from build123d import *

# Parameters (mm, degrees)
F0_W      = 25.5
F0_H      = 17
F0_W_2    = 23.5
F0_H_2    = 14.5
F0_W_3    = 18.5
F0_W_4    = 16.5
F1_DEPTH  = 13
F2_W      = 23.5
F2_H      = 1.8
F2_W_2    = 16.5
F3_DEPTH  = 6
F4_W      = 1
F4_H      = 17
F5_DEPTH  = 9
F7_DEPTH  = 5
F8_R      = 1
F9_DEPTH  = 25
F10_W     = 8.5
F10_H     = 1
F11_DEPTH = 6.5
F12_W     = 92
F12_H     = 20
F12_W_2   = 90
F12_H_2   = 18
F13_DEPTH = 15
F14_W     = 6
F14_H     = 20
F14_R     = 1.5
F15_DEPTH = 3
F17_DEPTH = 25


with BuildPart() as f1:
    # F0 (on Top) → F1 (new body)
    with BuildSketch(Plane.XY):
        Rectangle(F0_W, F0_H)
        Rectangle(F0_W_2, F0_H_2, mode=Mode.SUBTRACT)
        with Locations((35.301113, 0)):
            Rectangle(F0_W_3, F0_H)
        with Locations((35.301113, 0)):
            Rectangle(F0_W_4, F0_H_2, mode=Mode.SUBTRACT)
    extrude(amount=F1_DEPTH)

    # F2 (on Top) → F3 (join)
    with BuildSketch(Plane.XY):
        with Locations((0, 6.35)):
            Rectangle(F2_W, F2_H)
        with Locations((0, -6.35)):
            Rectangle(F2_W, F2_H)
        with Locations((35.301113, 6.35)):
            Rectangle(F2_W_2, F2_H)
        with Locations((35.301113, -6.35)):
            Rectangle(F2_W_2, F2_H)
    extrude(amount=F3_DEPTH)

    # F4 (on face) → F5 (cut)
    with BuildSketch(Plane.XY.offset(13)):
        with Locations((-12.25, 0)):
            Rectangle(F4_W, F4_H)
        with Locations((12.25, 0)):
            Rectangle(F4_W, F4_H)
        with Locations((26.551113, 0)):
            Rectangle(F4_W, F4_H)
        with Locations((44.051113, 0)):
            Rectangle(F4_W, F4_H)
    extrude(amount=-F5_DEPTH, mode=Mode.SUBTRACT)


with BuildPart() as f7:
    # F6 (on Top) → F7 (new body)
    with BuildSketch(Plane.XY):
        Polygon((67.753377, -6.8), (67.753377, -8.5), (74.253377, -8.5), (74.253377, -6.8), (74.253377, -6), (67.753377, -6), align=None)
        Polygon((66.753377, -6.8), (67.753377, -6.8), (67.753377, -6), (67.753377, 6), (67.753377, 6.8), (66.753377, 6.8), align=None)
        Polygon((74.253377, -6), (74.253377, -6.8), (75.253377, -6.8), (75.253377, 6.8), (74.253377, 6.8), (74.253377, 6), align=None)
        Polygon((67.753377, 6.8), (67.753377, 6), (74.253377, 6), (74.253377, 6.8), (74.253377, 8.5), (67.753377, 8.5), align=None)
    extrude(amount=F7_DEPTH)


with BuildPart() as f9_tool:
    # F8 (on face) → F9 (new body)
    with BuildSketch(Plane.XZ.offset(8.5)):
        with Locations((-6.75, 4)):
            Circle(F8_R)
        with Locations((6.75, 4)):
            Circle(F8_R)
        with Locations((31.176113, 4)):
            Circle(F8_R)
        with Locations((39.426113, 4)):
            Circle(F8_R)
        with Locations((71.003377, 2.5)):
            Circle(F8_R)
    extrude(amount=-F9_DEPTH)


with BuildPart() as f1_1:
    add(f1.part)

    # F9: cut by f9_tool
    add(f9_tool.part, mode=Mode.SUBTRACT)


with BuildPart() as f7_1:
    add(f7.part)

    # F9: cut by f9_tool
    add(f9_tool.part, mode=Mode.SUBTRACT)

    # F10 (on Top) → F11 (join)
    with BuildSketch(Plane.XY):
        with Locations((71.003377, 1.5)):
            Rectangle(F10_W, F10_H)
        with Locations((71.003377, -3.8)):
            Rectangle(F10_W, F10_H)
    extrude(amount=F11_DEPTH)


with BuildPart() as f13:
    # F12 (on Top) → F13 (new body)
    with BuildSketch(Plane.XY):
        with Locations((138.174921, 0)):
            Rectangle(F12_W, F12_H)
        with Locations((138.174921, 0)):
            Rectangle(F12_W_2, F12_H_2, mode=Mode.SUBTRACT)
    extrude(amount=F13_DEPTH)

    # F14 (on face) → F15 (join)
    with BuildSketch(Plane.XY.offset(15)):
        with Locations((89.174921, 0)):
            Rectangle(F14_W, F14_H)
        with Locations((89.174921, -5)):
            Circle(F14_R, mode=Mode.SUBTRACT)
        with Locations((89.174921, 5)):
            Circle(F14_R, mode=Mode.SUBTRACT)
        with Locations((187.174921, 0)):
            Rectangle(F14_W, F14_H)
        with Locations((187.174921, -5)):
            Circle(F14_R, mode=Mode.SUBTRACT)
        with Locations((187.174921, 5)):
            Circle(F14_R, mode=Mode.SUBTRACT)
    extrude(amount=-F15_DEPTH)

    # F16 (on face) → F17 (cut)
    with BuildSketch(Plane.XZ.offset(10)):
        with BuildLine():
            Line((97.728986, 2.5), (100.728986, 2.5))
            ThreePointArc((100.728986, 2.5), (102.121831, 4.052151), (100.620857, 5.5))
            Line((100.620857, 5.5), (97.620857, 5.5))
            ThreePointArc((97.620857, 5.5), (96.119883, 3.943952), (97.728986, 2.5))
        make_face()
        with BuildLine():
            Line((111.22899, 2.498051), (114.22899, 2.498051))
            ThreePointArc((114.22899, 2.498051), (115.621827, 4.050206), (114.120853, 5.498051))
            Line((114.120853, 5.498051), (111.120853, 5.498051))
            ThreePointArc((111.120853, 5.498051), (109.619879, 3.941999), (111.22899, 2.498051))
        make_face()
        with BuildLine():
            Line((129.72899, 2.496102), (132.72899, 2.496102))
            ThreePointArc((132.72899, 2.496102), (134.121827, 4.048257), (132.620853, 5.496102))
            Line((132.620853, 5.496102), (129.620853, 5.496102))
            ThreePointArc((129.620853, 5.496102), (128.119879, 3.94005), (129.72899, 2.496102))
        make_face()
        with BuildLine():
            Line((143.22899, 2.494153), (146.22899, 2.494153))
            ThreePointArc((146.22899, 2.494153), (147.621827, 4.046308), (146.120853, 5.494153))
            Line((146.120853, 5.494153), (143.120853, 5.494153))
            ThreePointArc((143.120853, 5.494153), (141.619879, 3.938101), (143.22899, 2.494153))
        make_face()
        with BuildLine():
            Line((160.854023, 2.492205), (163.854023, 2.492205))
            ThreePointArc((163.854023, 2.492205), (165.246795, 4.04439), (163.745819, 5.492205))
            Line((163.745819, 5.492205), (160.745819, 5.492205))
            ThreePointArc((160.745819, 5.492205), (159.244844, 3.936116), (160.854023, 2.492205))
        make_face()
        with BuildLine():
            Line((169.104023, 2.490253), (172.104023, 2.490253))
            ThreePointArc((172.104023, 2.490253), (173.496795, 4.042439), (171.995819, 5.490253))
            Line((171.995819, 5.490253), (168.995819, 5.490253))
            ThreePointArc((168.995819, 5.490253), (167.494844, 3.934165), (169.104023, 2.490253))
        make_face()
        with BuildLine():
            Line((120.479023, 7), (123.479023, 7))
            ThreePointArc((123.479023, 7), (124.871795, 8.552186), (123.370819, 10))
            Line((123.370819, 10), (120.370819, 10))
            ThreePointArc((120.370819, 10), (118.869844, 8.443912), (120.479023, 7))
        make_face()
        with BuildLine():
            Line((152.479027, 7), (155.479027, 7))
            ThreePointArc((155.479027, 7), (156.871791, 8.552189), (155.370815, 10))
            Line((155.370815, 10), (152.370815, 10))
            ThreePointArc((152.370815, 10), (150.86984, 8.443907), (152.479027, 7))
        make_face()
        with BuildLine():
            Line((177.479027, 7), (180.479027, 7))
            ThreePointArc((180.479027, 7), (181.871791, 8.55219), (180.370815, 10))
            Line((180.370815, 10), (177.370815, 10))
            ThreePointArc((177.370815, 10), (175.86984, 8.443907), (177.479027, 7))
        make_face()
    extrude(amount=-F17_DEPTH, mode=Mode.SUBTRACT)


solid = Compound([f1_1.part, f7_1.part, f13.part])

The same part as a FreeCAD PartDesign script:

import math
import FreeCAD as App
import Part
import Sketcher
Q = App.Units.Quantity


def add_polygon(sketch, points):
    """Adds a closed chain of lines whose ends are joined by coincident constraints."""
    first, n = sketch.GeometryCount, len(points)
    for a, b in zip(points, points[1:] + points[:1]):
        sketch.addGeometry(Part.LineSegment(App.Vector(*a, 0), App.Vector(*b, 0)), False)
    for i in range(n):
        sketch.addConstraint(Sketcher.Constraint("Coincident", first + i, 2, first + (i + 1) % n, 1))

doc = App.newDocument("Part")
body = doc.addObject("PartDesign::Body", "Body")
body.AllowCompound = True

# Sketch on XY plane
sketch1 = body.newObject("Sketcher::SketchObject", "Sketch")
sketch1.AttachmentSupport = (doc.getObject("XY_Plane"), [""])
sketch1.MapMode = "FlatFace"
add_polygon(sketch1, [(-13, 8), (-13, -8), (13, -8), (13, 8)])  # lines 0-3
add_polygon(sketch1, [(12, -7), (-12, -7), (-12, 7), (12, 7)])  # lines 4-7
add_polygon(sketch1, [(26, 8), (26, -8), (45, -8), (45, 8)])  # lines 8-11
add_polygon(sketch1, [(44, -7), (27, -7), (27, 7), (44, 7)])  # lines 12-15
sketch1.addConstraint([
    Sketcher.Constraint("Vertical", 0),
    Sketcher.Constraint("Horizontal", 1),
    Sketcher.Constraint("Vertical", 2),
    Sketcher.Constraint("Horizontal", 3),
    Sketcher.Constraint("Horizontal", 4),
    Sketcher.Constraint("Vertical", 5),
    Sketcher.Constraint("Horizontal", 6),
    Sketcher.Constraint("Vertical", 7),
    Sketcher.Constraint("Vertical", 8),
    Sketcher.Constraint("Horizontal", 9),
    Sketcher.Constraint("Vertical", 10),
    Sketcher.Constraint("Horizontal", 11),
    Sketcher.Constraint("Horizontal", 12),
    Sketcher.Constraint("Vertical", 13),
    Sketcher.Constraint("Horizontal", 14),
    Sketcher.Constraint("Vertical", 15),
    Sketcher.Constraint("Symmetric", 0, 2, 2, 2, -1, 1),
    Sketcher.Constraint("Symmetric", 4, 2, 6, 2, -1, 1),
    Sketcher.Constraint("Horizontal", 1, 2, 8, 2),
    Sketcher.Constraint("Horizontal", 3, 2, 10, 2),
    Sketcher.Constraint("Horizontal", 7, 2, 12, 2),
    Sketcher.Constraint("Horizontal", 6, 2, 13, 2),
    Sketcher.Constraint("DistanceY", 0, 2, 0, 1, Q("17 mm")),
    Sketcher.Constraint("DistanceX", 1, 1, 1, 2, Q("25.5 mm")),
    Sketcher.Constraint("DistanceX", 4, 2, 4, 1, Q("23.5 mm")),
    Sketcher.Constraint("DistanceX", 9, 1, 9, 2, Q("18.5 mm")),
    Sketcher.Constraint("DistanceX", 12, 2, 12, 1, Q("16.5 mm")),
    Sketcher.Constraint("DistanceY", 5, 1, 5, 2, Q("14.5 mm")),
    Sketcher.Constraint("DistanceX", 8, 2, 12, 2, Q("1 mm")),
    Sketcher.Constraint("DistanceX", -1, 1, 8, 2, Q("26.051113 mm")),
])
pad1 = body.newObject("PartDesign::Pad", "Pad")
pad1.Profile = sketch1
pad1.Length = 13

# Sketch on XY plane
sketch2 = body.newObject("Sketcher::SketchObject", "Sketch001")
sketch2.AttachmentSupport = (doc.getObject("XY_Plane"), [""])
sketch2.MapMode = "FlatFace"
add_polygon(sketch2, [(-11.8, 7.2), (-11.8, 5.5), (11.8, 5.5), (11.8, 7.2)])  # lines 0-3
add_polygon(sketch2, [(-11.8, -5.5), (-11.8, -7.2), (11.8, -7.2), (11.8, -5.5)])  # lines 4-7
add_polygon(sketch2, [(27.1, 7.2), (27.1, 5.5), (43.6, 5.5), (43.6, 7.2)])  # lines 8-11
add_polygon(sketch2, [(27.1, -5.5), (27.1, -7.2), (43.6, -7.2), (43.6, -5.5)])  # lines 12-15
sketch2.addConstraint([
    Sketcher.Constraint("Vertical", 0),
    Sketcher.Constraint("Horizontal", 1),
    Sketcher.Constraint("Vertical", 2),
    Sketcher.Constraint("Horizontal", 3),
    Sketcher.Constraint("Vertical", 4),
    Sketcher.Constraint("Horizontal", 5),
    Sketcher.Constraint("Vertical", 6),
    Sketcher.Constraint("Horizontal", 7),
    Sketcher.Constraint("Vertical", 8),
    Sketcher.Constraint("Horizontal", 9),
    Sketcher.Constraint("Vertical", 10),
    Sketcher.Constraint("Horizontal", 11),
    Sketcher.Constraint("Vertical", 12),
    Sketcher.Constraint("Horizontal", 13),
    Sketcher.Constraint("Vertical", 14),
    Sketcher.Constraint("Horizontal", 15),
    Sketcher.Constraint("Symmetric", 2, 2, 4, 2, -1, 1),
    Sketcher.Constraint("Symmetric", 0, 2, 6, 2, -1, 1),
    Sketcher.Constraint("Symmetric", 11, 2, 12, 2, -1),
    Sketcher.Constraint("Symmetric", 9, 2, 14, 2, -1),
    Sketcher.Constraint("Horizontal", 1, 2, 8, 2),
    Sketcher.Constraint("Horizontal", 3, 2, 10, 2),
    Sketcher.Constraint("Vertical", 3, 2, 4, 2),
    Sketcher.Constraint("DistanceX", 1, 1, 1, 2, Q("23.5 mm")),
    Sketcher.Constraint("DistanceX", 9, 1, 9, 2, Q("16.5 mm")),
    Sketcher.Constraint("DistanceY", 0, 2, 0, 1, Q("1.8 mm")),
    Sketcher.Constraint("DistanceY", 4, 2, 0, 2, Q("12.7 mm")),
    Sketcher.Constraint("DistanceX", -1, 1, 8, 2, Q("27.051113 mm")),
])
pad2 = body.newObject("PartDesign::Pad", "Pad001")
pad2.Profile = sketch2
pad2.Length = 6

# Sketch on XY plane
sketch3 = body.newObject("Sketcher::SketchObject", "Sketch002")
sketch3.AttachmentSupport = (doc.getObject("XY_Plane"), [""])
sketch3.MapMode = "FlatFace"
sketch3.AttachmentOffset = App.Placement(App.Vector(0, 0, 13), App.Rotation())
add_polygon(sketch3, [(-12.8, 8.5), (-12.8, -8.5), (-11.8, -8.5), (-11.8, 8.5)])  # lines 0-3
add_polygon(sketch3, [(11.8, 8.5), (11.8, -8.5), (12.8, -8.5), (12.8, 8.5)])  # lines 4-7
add_polygon(sketch3, [(26.1, 8.5), (26.1, -8.5), (27.1, -8.5), (27.1, 8.5)])  # lines 8-11
add_polygon(sketch3, [(43.6, 8.5), (43.6, -8.5), (44.6, -8.5), (44.6, 8.5)])  # lines 12-15
sketch3.addConstraint([
    Sketcher.Constraint("Vertical", 0),
    Sketcher.Constraint("Horizontal", 1),
    Sketcher.Constraint("Vertical", 2),
    Sketcher.Constraint("Horizontal", 3),
    Sketcher.Constraint("Vertical", 4),
    Sketcher.Constraint("Horizontal", 5),
    Sketcher.Constraint("Vertical", 6),
    Sketcher.Constraint("Horizontal", 7),
    Sketcher.Constraint("Vertical", 8),
    Sketcher.Constraint("Horizontal", 9),
    Sketcher.Constraint("Vertical", 10),
    Sketcher.Constraint("Horizontal", 11),
    Sketcher.Constraint("Vertical", 12),
    Sketcher.Constraint("Horizontal", 13),
    Sketcher.Constraint("Vertical", 14),
    Sketcher.Constraint("Horizontal", 15),
    Sketcher.Constraint("Symmetric", 2, 2, 4, 2, -1, 1),
    Sketcher.Constraint("Symmetric", 0, 2, 6, 2, -1, 1),
    Sketcher.Constraint("Horizontal", 1, 2, 4, 2),
    Sketcher.Constraint("Horizontal", 5, 2, 8, 2),
    Sketcher.Constraint("Horizontal", 7, 2, 10, 2),
    Sketcher.Constraint("Horizontal", 9, 2, 12, 2),
    Sketcher.Constraint("Horizontal", 11, 2, 14, 2),
    Sketcher.Constraint("Equal", 7, 9),
    Sketcher.Constraint("Equal", 11, 13),
    Sketcher.Constraint("DistanceX", 1, 1, 1, 2, Q("1 mm")),
    Sketcher.Constraint("DistanceY", 0, 2, 0, 1, Q("17 mm")),
    Sketcher.Constraint("DistanceX", 1, 2, 4, 2, Q("23.5 mm")),
    Sketcher.Constraint("DistanceX", 9, 2, 12, 2, Q("16.5 mm")),
    Sketcher.Constraint("DistanceX", -1, 1, 8, 2, Q("26.051113 mm")),
])
pocket1 = body.newObject("PartDesign::Pocket", "Pocket")
pocket1.Profile = sketch3
pocket1.Length = 9
body2 = doc.addObject("PartDesign::Body", "Body001")

# Sketch on XY plane
sketch4 = body2.newObject("Sketcher::SketchObject", "Sketch003")
sketch4.AttachmentSupport = (doc.getObject("XY_Plane001"), [""])
sketch4.MapMode = "FlatFace"
add_polygon(sketch4, [(67.8, -8.5), (74.3, -8.5), (74.3, -6.8), (75.3, -6.8), (75.3, 6.8), (74.3, 6.8), (74.3, 8.5), (67.8, 8.5), (67.8, 6.8), (66.8, 6.8), (66.8, -6.8), (67.8, -6.8)])  # lines 0-11
add_polygon(sketch4, [(74.3, 6), (74.3, -6), (67.8, -6), (67.8, 6)])  # lines 12-15
sketch4.addConstraint([
    Sketcher.Constraint("Horizontal", 0),
    Sketcher.Constraint("Vertical", 1),
    Sketcher.Constraint("Horizontal", 2),
    Sketcher.Constraint("Vertical", 3),
    Sketcher.Constraint("Horizontal", 4),
    Sketcher.Constraint("Vertical", 5),
    Sketcher.Constraint("Horizontal", 6),
    Sketcher.Constraint("Vertical", 7),
    Sketcher.Constraint("Horizontal", 8),
    Sketcher.Constraint("Vertical", 9),
    Sketcher.Constraint("Horizontal", 10),
    Sketcher.Constraint("Vertical", 11),
    Sketcher.Constraint("Vertical", 12),
    Sketcher.Constraint("Horizontal", 13),
    Sketcher.Constraint("Vertical", 14),
    Sketcher.Constraint("Horizontal", 15),
    Sketcher.Constraint("Symmetric", 1, 2, 4, 2, -1),
    Sketcher.Constraint("Symmetric", 7, 2, 10, 2, -1),
    Sketcher.Constraint("Horizontal", 4, 2, 7, 2),
    Sketcher.Constraint("Vertical", 5, 2, 12, 2),
    Sketcher.Constraint("Vertical", 11, 2, 13, 2),
    Sketcher.Constraint("Equal", 4, 8),
    Sketcher.Constraint("Equal", 1, 5),
    Sketcher.Constraint("DistanceX", 2, 1, 2, 2, Q("1 mm")),
    Sketcher.Constraint("DistanceY", 12, 2, 12, 1, Q("12 mm")),
    Sketcher.Constraint("DistanceX", 0, 1, 0, 2, Q("6.5 mm")),
    Sketcher.Constraint("DistanceY", 1, 1, 1, 2, Q("1.7 mm")),
    Sketcher.Constraint("DistanceY", 3, 1, 3, 2, Q("13.6 mm")),
    Sketcher.Constraint("DistanceY", 12, 2, -1, 1, Q("6 mm")),
    Sketcher.Constraint("DistanceX", -1, 1, 0, 2, Q("74.253377 mm")),
])
pad3 = body2.newObject("PartDesign::Pad", "Pad002")
pad3.Profile = sketch4
pad3.Length = 5
body3 = doc.addObject("PartDesign::Body", "Body002")
body3.AllowCompound = True

# Sketch on XZ plane
sketch5 = body3.newObject("Sketcher::SketchObject", "Sketch004")
sketch5.AttachmentSupport = (doc.getObject("XZ_Plane002"), [""])
sketch5.MapMode = "FlatFace"
sketch5.AttachmentOffset = App.Placement(App.Vector(0, 0, 8.5), App.Rotation())
sketch5.addGeometry([
    Part.Circle(App.Vector(-6.8, 4, 0), App.Vector(0, 0, 1), 1),  # 0
    Part.Circle(App.Vector(6.8, 4, 0), App.Vector(0, 0, 1), 1),  # 1
    Part.Circle(App.Vector(31.2, 4, 0), App.Vector(0, 0, 1), 1),  # 2
    Part.Circle(App.Vector(39.4, 4, 0), App.Vector(0, 0, 1), 1),  # 3
    Part.Circle(App.Vector(71, 2.5, 0), App.Vector(0, 0, 1), 1),  # 4
], False)
sketch5.addConstraint([
    Sketcher.Constraint("Equal", 0, 1),
    Sketcher.Constraint("Equal", 1, 2),
    Sketcher.Constraint("Equal", 2, 3),
    Sketcher.Constraint("Equal", 3, 4),
    Sketcher.Constraint("Symmetric", 0, 3, 1, 3, -2),
    Sketcher.Constraint("Horizontal", 1, 3, 2, 3),
    Sketcher.Constraint("Horizontal", 2, 3, 3, 3),
    Sketcher.Constraint("Diameter", 0, Q("2 mm")),
    Sketcher.Constraint("DistanceY", -1, 1, 0, 3, Q("4 mm")),
    Sketcher.Constraint("DistanceY", -1, 1, 4, 3, Q("2.5 mm")),
    Sketcher.Constraint("DistanceX", 0, 3, 1, 3, Q("13.5 mm")),
    Sketcher.Constraint("DistanceX", 2, 3, 3, 3, Q("8.25 mm")),
    Sketcher.Constraint("DistanceX", -1, 1, 2, 3, Q("31.176113 mm")),
    Sketcher.Constraint("DistanceX", -1, 1, 4, 3, Q("71.003377 mm")),
])
pad4 = body3.newObject("PartDesign::Pad", "Pad003")
pad4.Profile = sketch5
pad4.Length = 25
pad4.Reversed = True
body.AllowCompound = True
doc.recompute()

body4 = doc.addObject("PartDesign::Body", "Body003")
body4.BaseFeature = body3
boolean = body.newObject("PartDesign::Boolean", "Boolean")
boolean.Type = "Cut"
boolean.addObjects([body4])
doc.recompute()

boolean2 = body2.newObject("PartDesign::Boolean", "Boolean001")
boolean2.Type = "Cut"
boolean2.addObjects([body3])

# Sketch on XY plane
sketch6 = body2.newObject("Sketcher::SketchObject", "Sketch005")
sketch6.AttachmentSupport = (doc.getObject("XY_Plane001"), [""])
sketch6.MapMode = "FlatFace"
add_polygon(sketch6, [(66.8, 2), (66.8, 1), (75.3, 1), (75.3, 2)])  # lines 0-3
add_polygon(sketch6, [(66.8, -3.3), (66.8, -4.3), (75.3, -4.3), (75.3, -3.3)])  # lines 4-7
sketch6.addConstraint([
    Sketcher.Constraint("Vertical", 0),
    Sketcher.Constraint("Horizontal", 1),
    Sketcher.Constraint("Vertical", 2),
    Sketcher.Constraint("Horizontal", 3),
    Sketcher.Constraint("Vertical", 4),
    Sketcher.Constraint("Horizontal", 5),
    Sketcher.Constraint("Vertical", 6),
    Sketcher.Constraint("Horizontal", 7),
    Sketcher.Constraint("Vertical", 3, 2, 4, 2),
    Sketcher.Constraint("Vertical", 2, 2, 5, 2),
    Sketcher.Constraint("Equal", 2, 4),
    Sketcher.Constraint("DistanceY", 0, 2, 0, 1, Q("1 mm")),
    Sketcher.Constraint("DistanceX", 1, 1, 1, 2, Q("8.5 mm")),
    Sketcher.Constraint("DistanceY", -1, 1, 0, 2, Q("1 mm")),
    Sketcher.Constraint("DistanceY", 4, 2, -1, 1, Q("4.3 mm")),
    Sketcher.Constraint("DistanceX", -1, 1, 0, 2, Q("66.753377 mm")),
])
pad5 = body2.newObject("PartDesign::Pad", "Pad004")
pad5.Profile = sketch6
pad5.Length = 6.5
body5 = doc.addObject("PartDesign::Body", "Body004")

# Sketch on XY plane
sketch7 = body5.newObject("Sketcher::SketchObject", "Sketch006")
sketch7.AttachmentSupport = (doc.getObject("XY_Plane004"), [""])
sketch7.MapMode = "FlatFace"
add_polygon(sketch7, [(92, 10), (92, -10), (184, -10), (184, 10)])  # lines 0-3
add_polygon(sketch7, [(183, -9), (93, -9), (93, 9), (183, 9)])  # lines 4-7
sketch7.addConstraint([
    Sketcher.Constraint("Vertical", 0),
    Sketcher.Constraint("Horizontal", 1),
    Sketcher.Constraint("Vertical", 2),
    Sketcher.Constraint("Horizontal", 3),
    Sketcher.Constraint("Horizontal", 4),
    Sketcher.Constraint("Vertical", 5),
    Sketcher.Constraint("Horizontal", 6),
    Sketcher.Constraint("Vertical", 7),
    Sketcher.Constraint("DistanceX", 1, 1, 1, 2, Q("92 mm")),
    Sketcher.Constraint("DistanceX", 4, 2, 4, 1, Q("90 mm")),
    Sketcher.Constraint("DistanceY", 0, 2, 0, 1, Q("20 mm")),
    Sketcher.Constraint("DistanceY", 5, 1, 5, 2, Q("18 mm")),
    Sketcher.Constraint("DistanceY", 0, 2, -1, 1, Q("10 mm")),
    Sketcher.Constraint("DistanceY", 4, 2, -1, 1, Q("9 mm")),
    Sketcher.Constraint("DistanceX", 0, 2, 4, 2, Q("1 mm")),
    Sketcher.Constraint("DistanceX", -1, 1, 0, 2, Q("92.174921 mm")),
])
pad6 = body5.newObject("PartDesign::Pad", "Pad005")
pad6.Profile = sketch7
pad6.Length = 15

# Sketch on XY plane
sketch8 = body5.newObject("Sketcher::SketchObject", "Sketch007")
sketch8.AttachmentSupport = (doc.getObject("XY_Plane004"), [""])
sketch8.MapMode = "FlatFace"
sketch8.AttachmentOffset = App.Placement(App.Vector(0, 0, 15), App.Rotation())
add_polygon(sketch8, [(86.2, 10), (86.2, -10), (92.2, -10), (92.2, 10)])  # lines 0-3
sketch8.addGeometry(Part.Circle(App.Vector(89.2, -5, 0), App.Vector(0, 0, 1), 1.5), False)  # 4
sketch8.addGeometry(Part.Circle(App.Vector(89.2, 5, 0), App.Vector(0, 0, 1), 1.5), False)  # 5
add_polygon(sketch8, [(184.2, 10), (184.2, -10), (190.2, -10), (190.2, 10)])  # lines 6-9
sketch8.addGeometry(Part.Circle(App.Vector(187.2, -5, 0), App.Vector(0, 0, 1), 1.5), False)  # 10
sketch8.addGeometry(Part.Circle(App.Vector(187.2, 5, 0), App.Vector(0, 0, 1), 1.5), False)  # 11
sketch8.addConstraint([
    Sketcher.Constraint("Vertical", 0),
    Sketcher.Constraint("Horizontal", 1),
    Sketcher.Constraint("Vertical", 2),
    Sketcher.Constraint("Horizontal", 3),
    Sketcher.Constraint("Vertical", 6),
    Sketcher.Constraint("Horizontal", 7),
    Sketcher.Constraint("Vertical", 8),
    Sketcher.Constraint("Horizontal", 9),
    Sketcher.Constraint("Equal", 4, 5),
    Sketcher.Constraint("Equal", 5, 10),
    Sketcher.Constraint("Equal", 10, 11),
    Sketcher.Constraint("Symmetric", 4, 3, 5, 3, -1),
    Sketcher.Constraint("Symmetric", 10, 3, 11, 3, -1),
    Sketcher.Constraint("Horizontal", 4, 3, 10, 3),
    Sketcher.Constraint("Horizontal", 1, 2, 6, 2),
    Sketcher.Constraint("Horizontal", 3, 2, 8, 2),
    Sketcher.Constraint("Equal", 3, 7),
    Sketcher.Constraint("Diameter", 4, Q("3 mm")),
    Sketcher.Constraint("DistanceX", 1, 1, 1, 2, Q("6 mm")),
    Sketcher.Constraint("DistanceY", 0, 2, 0, 1, Q("20 mm")),
    Sketcher.Constraint("DistanceY", 4, 3, -1, 1, Q("5 mm")),
    Sketcher.Constraint("DistanceY", 0, 2, -1, 1, Q("10 mm")),
    Sketcher.Constraint("DistanceX", 4, 3, 10, 3, Q("98 mm")),
    Sketcher.Constraint("DistanceX", 0, 2, 4, 3, Q("3 mm")),
    Sketcher.Constraint("DistanceX", 6, 2, 10, 3, Q("3 mm")),
    Sketcher.Constraint("DistanceX", -1, 1, 4, 3, Q("89.174921 mm")),
])
pad7 = body5.newObject("PartDesign::Pad", "Pad006")
pad7.Profile = sketch8
pad7.Length = 3
pad7.Reversed = True

# Sketch on XZ plane
sketch9 = body5.newObject("Sketcher::SketchObject", "Sketch008")
sketch9.AttachmentSupport = (doc.getObject("XZ_Plane004"), [""])
sketch9.MapMode = "FlatFace"
sketch9.AttachmentOffset = App.Placement(App.Vector(0, 0, 10), App.Rotation())
sketch9.addGeometry([
    Part.LineSegment(App.Vector(97.7, 2.5, 0), App.Vector(100.7, 2.5, 0)),  # 0
    Part.ArcOfCircle(Part.Circle(App.Vector(100.6, 4, 0), App.Vector(0, 0, 1), 1.5), math.radians(-86), math.radians(90)),  # 1
    Part.LineSegment(App.Vector(100.6, 5.5, 0), App.Vector(97.6, 5.5, 0)),  # 2
    Part.ArcOfCircle(Part.Circle(App.Vector(97.6, 4, 0), App.Vector(0, 0, 1), 1.5), math.radians(90), math.radians(274)),  # 3
    Part.LineSegment(App.Vector(111.2, 2.5, 0), App.Vector(114.2, 2.5, 0)),  # 4
    Part.ArcOfCircle(Part.Circle(App.Vector(114.1, 4, 0), App.Vector(0, 0, 1), 1.5), math.radians(-86), math.radians(90)),  # 5
    Part.LineSegment(App.Vector(114.1, 5.5, 0), App.Vector(111.1, 5.5, 0)),  # 6
    Part.ArcOfCircle(Part.Circle(App.Vector(111.1, 4, 0), App.Vector(0, 0, 1), 1.5), math.radians(90), math.radians(274)),  # 7
    Part.LineSegment(App.Vector(129.7, 2.5, 0), App.Vector(132.7, 2.5, 0)),  # 8
    Part.ArcOfCircle(Part.Circle(App.Vector(132.6, 4, 0), App.Vector(0, 0, 1), 1.5), math.radians(-86), math.radians(90)),  # 9
    Part.LineSegment(App.Vector(132.6, 5.5, 0), App.Vector(129.6, 5.5, 0)),  # 10
    Part.ArcOfCircle(Part.Circle(App.Vector(129.6, 4, 0), App.Vector(0, 0, 1), 1.5), math.radians(90), math.radians(274)),  # 11
    Part.LineSegment(App.Vector(143.2, 2.5, 0), App.Vector(146.2, 2.5, 0)),  # 12
    Part.ArcOfCircle(Part.Circle(App.Vector(146.1, 4, 0), App.Vector(0, 0, 1), 1.5), math.radians(-86), math.radians(90)),  # 13
    Part.LineSegment(App.Vector(146.1, 5.5, 0), App.Vector(143.1, 5.5, 0)),  # 14
    Part.ArcOfCircle(Part.Circle(App.Vector(143.1, 4, 0), App.Vector(0, 0, 1), 1.5), math.radians(90), math.radians(274)),  # 15
    Part.LineSegment(App.Vector(160.9, 2.5, 0), App.Vector(163.9, 2.5, 0)),  # 16
    Part.ArcOfCircle(Part.Circle(App.Vector(163.7, 4, 0), App.Vector(0, 0, 1), 1.5), math.radians(-86), math.radians(90)),  # 17
    Part.LineSegment(App.Vector(163.7, 5.5, 0), App.Vector(160.7, 5.5, 0)),  # 18
    Part.ArcOfCircle(Part.Circle(App.Vector(160.7, 4, 0), App.Vector(0, 0, 1), 1.5), math.radians(90), math.radians(274)),  # 19
    Part.LineSegment(App.Vector(169.1, 2.5, 0), App.Vector(172.1, 2.5, 0)),  # 20
    Part.ArcOfCircle(Part.Circle(App.Vector(172, 4, 0), App.Vector(0, 0, 1), 1.5), math.radians(-86), math.radians(90)),  # 21
    Part.LineSegment(App.Vector(172, 5.5, 0), App.Vector(169, 5.5, 0)),  # 22
    Part.ArcOfCircle(Part.Circle(App.Vector(169, 4, 0), App.Vector(0, 0, 1), 1.5), math.radians(90), math.radians(274)),  # 23
    Part.LineSegment(App.Vector(120.5, 7, 0), App.Vector(123.5, 7, 0)),  # 24
    Part.ArcOfCircle(Part.Circle(App.Vector(123.4, 8.5, 0), App.Vector(0, 0, 1), 1.5), math.radians(-86), math.radians(90)),  # 25
    Part.LineSegment(App.Vector(123.4, 10, 0), App.Vector(120.4, 10, 0)),  # 26
    Part.ArcOfCircle(Part.Circle(App.Vector(120.4, 8.5, 0), App.Vector(0, 0, 1), 1.5), math.radians(90), math.radians(274)),  # 27
    Part.LineSegment(App.Vector(152.5, 7, 0), App.Vector(155.5, 7, 0)),  # 28
    Part.ArcOfCircle(Part.Circle(App.Vector(155.4, 8.5, 0), App.Vector(0, 0, 1), 1.5), math.radians(-86), math.radians(90)),  # 29
    Part.LineSegment(App.Vector(155.4, 10, 0), App.Vector(152.4, 10, 0)),  # 30
    Part.ArcOfCircle(Part.Circle(App.Vector(152.4, 8.5, 0), App.Vector(0, 0, 1), 1.5), math.radians(90), math.radians(274)),  # 31
    Part.LineSegment(App.Vector(177.5, 7, 0), App.Vector(180.5, 7, 0)),  # 32
    Part.ArcOfCircle(Part.Circle(App.Vector(180.4, 8.5, 0), App.Vector(0, 0, 1), 1.5), math.radians(-86), math.radians(90)),  # 33
    Part.LineSegment(App.Vector(180.4, 10, 0), App.Vector(177.4, 10, 0)),  # 34
    Part.ArcOfCircle(Part.Circle(App.Vector(177.4, 8.5, 0), App.Vector(0, 0, 1), 1.5), math.radians(90), math.radians(274)),  # 35
], False)
sketch9.addConstraint([
    Sketcher.Constraint("Coincident", 0, 2, 1, 1),
    Sketcher.Constraint("Tangent", 1, 2, 2, 1),
    Sketcher.Constraint("Tangent", 2, 2, 3, 1),
    Sketcher.Constraint("Coincident", 3, 2, 0, 1),
    Sketcher.Constraint("Coincident", 4, 2, 5, 1),
    Sketcher.Constraint("Tangent", 5, 2, 6, 1),
    Sketcher.Constraint("Tangent", 6, 2, 7, 1),
    Sketcher.Constraint("Coincident", 7, 2, 4, 1),
    Sketcher.Constraint("Coincident", 8, 2, 9, 1),
    Sketcher.Constraint("Tangent", 9, 2, 10, 1),
    Sketcher.Constraint("Tangent", 10, 2, 11, 1),
    Sketcher.Constraint("Coincident", 11, 2, 8, 1),
    Sketcher.Constraint("Coincident", 12, 2, 13, 1),
    Sketcher.Constraint("Tangent", 13, 2, 14, 1),
    Sketcher.Constraint("Tangent", 14, 2, 15, 1),
    Sketcher.Constraint("Coincident", 15, 2, 12, 1),
    Sketcher.Constraint("Coincident", 16, 2, 17, 1),
    Sketcher.Constraint("Tangent", 17, 2, 18, 1),
    Sketcher.Constraint("Tangent", 18, 2, 19, 1),
    Sketcher.Constraint("Coincident", 19, 2, 16, 1),
    Sketcher.Constraint("Coincident", 20, 2, 21, 1),
    Sketcher.Constraint("Tangent", 21, 2, 22, 1),
    Sketcher.Constraint("Tangent", 22, 2, 23, 1),
    Sketcher.Constraint("Coincident", 23, 2, 20, 1),
    Sketcher.Constraint("Coincident", 24, 2, 25, 1),
    Sketcher.Constraint("Tangent", 25, 2, 26, 1),
    Sketcher.Constraint("Tangent", 26, 2, 27, 1),
    Sketcher.Constraint("Coincident", 27, 2, 24, 1),
    Sketcher.Constraint("Coincident", 28, 2, 29, 1),
    Sketcher.Constraint("Tangent", 29, 2, 30, 1),
    Sketcher.Constraint("Tangent", 30, 2, 31, 1),
    Sketcher.Constraint("Coincident", 31, 2, 28, 1),
    Sketcher.Constraint("Coincident", 32, 2, 33, 1),
    Sketcher.Constraint("Tangent", 33, 2, 34, 1),
    Sketcher.Constraint("Tangent", 34, 2, 35, 1),
    Sketcher.Constraint("Coincident", 35, 2, 32, 1),
    Sketcher.Constraint("Horizontal", 0),
    Sketcher.Constraint("Horizontal", 2),
    Sketcher.Constraint("Horizontal", 4),
    Sketcher.Constraint("Horizontal", 6),
    Sketcher.Constraint("Horizontal", 8),
    Sketcher.Constraint("Horizontal", 10),
    Sketcher.Constraint("Horizontal", 12),
    Sketcher.Constraint("Horizontal", 14),
    Sketcher.Constraint("Horizontal", 16),
    Sketcher.Constraint("Horizontal", 18),
    Sketcher.Constraint("Horizontal", 20),
    Sketcher.Constraint("Horizontal", 22),
    Sketcher.Constraint("Horizontal", 24),
    Sketcher.Constraint("Horizontal", 26),
    Sketcher.Constraint("Horizontal", 28),
    Sketcher.Constraint("Horizontal", 30),
    Sketcher.Constraint("Horizontal", 32),
    Sketcher.Constraint("Horizontal", 34),
    Sketcher.Constraint("Equal", 1, 3),
    Sketcher.Constraint("Equal", 3, 5),
    Sketcher.Constraint("Equal", 5, 7),
    Sketcher.Constraint("Equal", 7, 9),
    Sketcher.Constraint("Equal", 9, 11),
    Sketcher.Constraint("Equal", 11, 13),
    Sketcher.Constraint("Equal", 13, 15),
    Sketcher.Constraint("Equal", 17, 19),
    Sketcher.Constraint("Equal", 19, 21),
    Sketcher.Constraint("Equal", 21, 23),
    Sketcher.Constraint("Equal", 23, 25),
    Sketcher.Constraint("Equal", 25, 27),
    Sketcher.Constraint("Equal", 27, 29),
    Sketcher.Constraint("Equal", 29, 31),
    Sketcher.Constraint("Equal", 31, 33),
    Sketcher.Constraint("Equal", 33, 35),
    Sketcher.Constraint("Horizontal", 27, 3, 29, 3),
    Sketcher.Constraint("Horizontal", 31, 3, 33, 3),
    Sketcher.Constraint("Horizontal", 27, 2, 28, 2),
    Sketcher.Constraint("Horizontal", 31, 2, 32, 2),
    Sketcher.Constraint("Equal", 2, 4),
    Sketcher.Constraint("Equal", 6, 8),
    Sketcher.Constraint("Equal", 10, 12),
    Sketcher.Constraint("Equal", 14, 16),
    Sketcher.Constraint("Equal", 18, 20),
    Sketcher.Constraint("Equal", 22, 24),
    Sketcher.Constraint("Equal", 26, 28),
    Sketcher.Constraint("Equal", 30, 32),
    Sketcher.Constraint("DistanceX", 0, 1, 0, 2, Q("3 mm")),
    Sketcher.Constraint("DistanceY", -1, 1, 24, 2, Q("7 mm")),
    Sketcher.Constraint("DistanceY", -1, 1, 25, 2, Q("10 mm")),
    Sketcher.Constraint("DistanceX", 5, 3, 13, 3, Q("32 mm")),
    Sketcher.Constraint("DistanceX", 29, 3, 33, 3, Q("25 mm")),
    Sketcher.Constraint("DistanceY", 0, 2, 1, 2, Q("3 mm")),
    Sketcher.Constraint("DistanceY", 4, 2, 5, 2, Q("3 mm")),
    Sketcher.Constraint("DistanceY", 8, 2, 9, 2, Q("3 mm")),
    Sketcher.Constraint("DistanceY", 12, 2, 13, 2, Q("3 mm")),
    Sketcher.Constraint("DistanceY", 16, 2, 17, 2, Q("3 mm")),
    Sketcher.Constraint("DistanceY", 20, 2, 21, 2, Q("3 mm")),
    Sketcher.Constraint("DistanceY", -1, 1, 0, 2, Q("2.5 mm")),
    Sketcher.Constraint("DistanceX", 5, 3, 9, 3, Q("18.5 mm")),
    Sketcher.Constraint("DistanceY", 20, 2, 17, 3, Q("1.500001 mm")),
    Sketcher.Constraint("Radius", 1, Q("1.501949 mm")),
    Sketcher.Constraint("Radius", 17, Q("1.501951 mm")),
    Sketcher.Constraint("DistanceX", 17, 3, 21, 3, Q("8.25 mm")),
    Sketcher.Constraint("DistanceY", -1, 1, 21, 3, Q("3.988302 mm")),
    Sketcher.Constraint("DistanceY", -1, 1, 8, 2, Q("2.496102 mm")),
    Sketcher.Constraint("DistanceY", 13, 3, 7, 3, Q("0.003898 mm")),
    Sketcher.Constraint("DistanceX", -1, 1, 17, 3, Q("163.74582 mm")),
    Sketcher.Constraint("DistanceX", -1, 1, 25, 3, Q("123.37082 mm")),
    Sketcher.Constraint("DistanceX", -1, 1, 4, 2, Q("114.22899 mm")),
    Sketcher.Constraint("DistanceY", -1, 1, 4, 2, Q("2.498051 mm")),
    Sketcher.Constraint("DistanceX", 13, 2, 30, 2, Q("6.249962 mm")),
    Sketcher.Constraint("DistanceX", -1, 1, 1, 3, Q("100.620857 mm")),
])
pocket2 = body5.newObject("PartDesign::Pocket", "Pocket001")
pocket2.Profile = sketch9
pocket2.Length = 25

doc.recompute()
